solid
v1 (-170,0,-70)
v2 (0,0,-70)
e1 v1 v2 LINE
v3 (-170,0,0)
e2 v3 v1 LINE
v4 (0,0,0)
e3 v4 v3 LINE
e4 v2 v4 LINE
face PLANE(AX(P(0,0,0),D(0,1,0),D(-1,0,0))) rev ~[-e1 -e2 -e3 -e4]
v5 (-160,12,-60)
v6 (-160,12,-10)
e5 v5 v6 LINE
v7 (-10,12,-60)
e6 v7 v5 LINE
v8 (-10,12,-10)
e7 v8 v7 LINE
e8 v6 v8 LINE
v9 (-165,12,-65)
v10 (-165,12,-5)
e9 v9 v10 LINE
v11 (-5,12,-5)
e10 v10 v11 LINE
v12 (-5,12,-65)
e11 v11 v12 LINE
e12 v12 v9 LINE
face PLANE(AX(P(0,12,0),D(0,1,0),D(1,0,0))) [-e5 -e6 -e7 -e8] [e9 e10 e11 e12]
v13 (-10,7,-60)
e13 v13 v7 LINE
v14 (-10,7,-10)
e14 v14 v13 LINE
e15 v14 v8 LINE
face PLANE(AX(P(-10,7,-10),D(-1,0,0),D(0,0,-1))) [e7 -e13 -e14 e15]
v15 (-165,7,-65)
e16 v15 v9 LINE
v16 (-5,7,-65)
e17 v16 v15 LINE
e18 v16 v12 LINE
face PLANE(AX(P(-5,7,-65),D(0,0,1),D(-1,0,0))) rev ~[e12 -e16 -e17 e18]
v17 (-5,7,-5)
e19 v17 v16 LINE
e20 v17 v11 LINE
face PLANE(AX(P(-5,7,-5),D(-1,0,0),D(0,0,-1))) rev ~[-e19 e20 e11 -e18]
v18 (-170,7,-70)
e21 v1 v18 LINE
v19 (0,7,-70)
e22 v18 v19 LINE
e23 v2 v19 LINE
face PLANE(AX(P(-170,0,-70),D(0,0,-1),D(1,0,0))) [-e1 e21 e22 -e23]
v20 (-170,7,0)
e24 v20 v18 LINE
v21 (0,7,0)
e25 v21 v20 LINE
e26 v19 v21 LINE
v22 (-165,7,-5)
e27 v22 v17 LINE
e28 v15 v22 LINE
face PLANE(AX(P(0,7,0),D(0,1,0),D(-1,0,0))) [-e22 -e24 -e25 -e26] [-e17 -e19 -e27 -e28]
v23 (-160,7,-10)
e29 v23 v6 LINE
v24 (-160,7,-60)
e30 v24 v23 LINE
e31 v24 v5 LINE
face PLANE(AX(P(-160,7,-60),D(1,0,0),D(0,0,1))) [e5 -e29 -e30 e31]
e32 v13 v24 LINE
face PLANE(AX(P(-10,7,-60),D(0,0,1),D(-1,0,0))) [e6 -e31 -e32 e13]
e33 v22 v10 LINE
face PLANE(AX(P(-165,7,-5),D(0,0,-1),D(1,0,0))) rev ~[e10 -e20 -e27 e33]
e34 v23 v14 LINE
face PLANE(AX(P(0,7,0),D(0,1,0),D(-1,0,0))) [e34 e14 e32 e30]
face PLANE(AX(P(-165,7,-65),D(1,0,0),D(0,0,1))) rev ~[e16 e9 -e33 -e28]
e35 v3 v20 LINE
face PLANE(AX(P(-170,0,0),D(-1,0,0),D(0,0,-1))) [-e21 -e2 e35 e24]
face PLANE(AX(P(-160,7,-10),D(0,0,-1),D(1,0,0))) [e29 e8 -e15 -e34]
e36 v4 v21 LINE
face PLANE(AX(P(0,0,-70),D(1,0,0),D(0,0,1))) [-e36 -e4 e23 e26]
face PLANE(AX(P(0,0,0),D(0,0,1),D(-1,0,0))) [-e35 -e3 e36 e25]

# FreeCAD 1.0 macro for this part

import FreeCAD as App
import Part
import Sketcher
from FreeCAD import Vector
Q = App.Units.Quantity

doc = App.newDocument("Part")
body = doc.addObject("PartDesign::Body", "Body")

sketch1 = doc.addObject("Sketcher::SketchObject", "Sketch")
body.addObject(sketch1)
sketch1.AttachmentSupport = (doc.XZ_Plane, [""])
sketch1.MapMode = "FlatFace"
sketch1.addGeometry([
    Part.LineSegment(Vector(-170, 0, 0), Vector(0, 0, 0)),
    Part.LineSegment(Vector(0, 0, 0), Vector(0, -70, 0)),
    Part.LineSegment(Vector(0, -70, 0), Vector(-170, -70, 0)),
    Part.LineSegment(Vector(-170, -70, 0), Vector(-170, 0, 0)),
], False)
sketch1.addConstraint([
    Sketcher.Constraint("Coincident", 0, 2, 1, 1),
    Sketcher.Constraint("Coincident", 1, 2, 2, 1),
    Sketcher.Constraint("Coincident", 2, 2, 3, 1),
    Sketcher.Constraint("Coincident", 3, 2, 0, 1),
    Sketcher.Constraint("Horizontal", 0),
    Sketcher.Constraint("Vertical", 1),
    Sketcher.Constraint("Horizontal", 2),
    Sketcher.Constraint("Vertical", 3),
    Sketcher.Constraint("Coincident", 0, 2, -1, 1),
    Sketcher.Constraint("DistanceX", 0, 1, 0, 2, Q("170 mm")),
    Sketcher.Constraint("DistanceY", 1, 2, 1, 1, Q("70 mm")),
])
pad1 = doc.addObject("PartDesign::Pad", "Pad")
body.addObject(pad1)
pad1.Profile = sketch1
pad1.Length = 7
pad1.Reversed = True

sketch2 = doc.addObject("Sketcher::SketchObject", "Sketch001")
body.addObject(sketch2)
sketch2.AttachmentSupport = (doc.XZ_Plane, [""])
sketch2.MapMode = "FlatFace"
sketch2.AttachmentOffset = App.Placement(Vector(0, 0, -7), App.Rotation())
sketch2.addGeometry([
    Part.LineSegment(Vector(-165, -65, 0), Vector(-165, -5, 0)),
    Part.LineSegment(Vector(-165, -5, 0), Vector(-5, -5, 0)),
    Part.LineSegment(Vector(-5, -5, 0), Vector(-5, -65, 0)),
    Part.LineSegment(Vector(-5, -65, 0), Vector(-165, -65, 0)),
    Part.LineSegment(Vector(-10, -10, 0), Vector(-160, -10, 0)),
    Part.LineSegment(Vector(-160, -10, 0), Vector(-160, -60, 0)),
    Part.LineSegment(Vector(-160, -60, 0), Vector(-10, -60, 0)),
    Part.LineSegment(Vector(-10, -60, 0), Vector(-10, -10, 0)),
], False)
sketch2.addConstraint([
    Sketcher.Constraint("Coincident", 0, 2, 1, 1),
    Sketcher.Constraint("Coincident", 1, 2, 2, 1),
    Sketcher.Constraint("Coincident", 2, 2, 3, 1),
    Sketcher.Constraint("Coincident", 3, 2, 0, 1),
    Sketcher.Constraint("Coincident", 4, 2, 5, 1),
    Sketcher.Constraint("Coincident", 5, 2, 6, 1),
    Sketcher.Constraint("Coincident", 6, 2, 7, 1),
    Sketcher.Constraint("Coincident", 7, 2, 4, 1),
    Sketcher.Constraint("Vertical", 0),
    Sketcher.Constraint("Horizontal", 1),
    Sketcher.Constraint("Vertical", 2),
    Sketcher.Constraint("Horizontal", 3),
    Sketcher.Constraint("Horizontal", 4),
    Sketcher.Constraint("Vertical", 5),
    Sketcher.Constraint("Horizontal", 6),
    Sketcher.Constraint("Vertical", 7),
    Sketcher.Constraint("DistanceY", 0, 2, -1, 1, Q("5 mm")),
    Sketcher.Constraint("DistanceX", 1, 2, -1, 1, Q("5 mm")),
    Sketcher.Constraint("DistanceX", 0, 2, 4, 2, Q("5 mm")),
    Sketcher.Constraint("DistanceY", 4, 2, 0, 2, Q("5 mm")),
    Sketcher.Constraint("DistanceY", 3, 2, 5, 2, Q("5 mm")),
    Sketcher.Constraint("DistanceX", 6, 2, 2, 2, Q("5 mm")),
    Sketcher.Constraint("DistanceX", 1, 1, 1, 2, Q("160 mm")),
    Sketcher.Constraint("DistanceY", 0, 1, 0, 2, Q("60 mm")),
])
pad2 = doc.addObject("PartDesign::Pad", "Pad001")
body.addObject(pad2)
pad2.Profile = sketch2
pad2.Length = 5
pad2.Reversed = True

doc.recompute()
